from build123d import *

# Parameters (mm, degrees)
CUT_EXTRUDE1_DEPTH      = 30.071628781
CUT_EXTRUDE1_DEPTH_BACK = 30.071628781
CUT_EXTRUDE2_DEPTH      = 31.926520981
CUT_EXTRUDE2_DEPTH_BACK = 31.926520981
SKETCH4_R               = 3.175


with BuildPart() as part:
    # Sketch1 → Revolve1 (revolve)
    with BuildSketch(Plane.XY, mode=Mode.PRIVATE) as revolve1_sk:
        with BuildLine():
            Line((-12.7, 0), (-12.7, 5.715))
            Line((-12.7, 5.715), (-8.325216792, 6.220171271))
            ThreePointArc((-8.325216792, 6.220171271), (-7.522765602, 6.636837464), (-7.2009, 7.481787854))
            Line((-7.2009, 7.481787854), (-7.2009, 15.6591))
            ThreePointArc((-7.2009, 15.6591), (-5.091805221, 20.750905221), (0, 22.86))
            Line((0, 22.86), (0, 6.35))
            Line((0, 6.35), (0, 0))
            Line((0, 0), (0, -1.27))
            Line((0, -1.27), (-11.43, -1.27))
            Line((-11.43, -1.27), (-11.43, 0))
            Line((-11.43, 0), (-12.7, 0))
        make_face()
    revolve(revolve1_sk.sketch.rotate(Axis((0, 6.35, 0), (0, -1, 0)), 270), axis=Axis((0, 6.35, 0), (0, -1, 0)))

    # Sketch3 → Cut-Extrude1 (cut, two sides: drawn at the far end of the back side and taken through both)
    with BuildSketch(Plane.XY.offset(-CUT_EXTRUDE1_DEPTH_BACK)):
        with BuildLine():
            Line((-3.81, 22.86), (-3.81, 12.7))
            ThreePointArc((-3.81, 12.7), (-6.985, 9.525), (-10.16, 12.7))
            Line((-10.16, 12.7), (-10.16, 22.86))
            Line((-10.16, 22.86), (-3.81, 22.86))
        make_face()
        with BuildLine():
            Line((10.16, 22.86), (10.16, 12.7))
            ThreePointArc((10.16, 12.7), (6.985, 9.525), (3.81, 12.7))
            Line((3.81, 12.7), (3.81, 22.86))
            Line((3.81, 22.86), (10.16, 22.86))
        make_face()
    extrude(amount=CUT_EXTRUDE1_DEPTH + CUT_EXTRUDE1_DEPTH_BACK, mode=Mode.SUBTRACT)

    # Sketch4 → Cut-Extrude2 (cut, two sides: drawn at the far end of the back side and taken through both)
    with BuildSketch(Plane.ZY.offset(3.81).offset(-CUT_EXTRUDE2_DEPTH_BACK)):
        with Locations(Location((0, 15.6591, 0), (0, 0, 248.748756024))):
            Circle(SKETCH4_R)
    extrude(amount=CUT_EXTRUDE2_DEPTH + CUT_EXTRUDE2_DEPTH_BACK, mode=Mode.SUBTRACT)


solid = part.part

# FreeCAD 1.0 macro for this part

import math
import FreeCAD as App
import Part
import Sketcher
from FreeCAD import Vector
Q = App.Units.Quantity

doc = App.newDocument("Part")
params = doc.addObject("Spreadsheet::Sheet", "Params")
for row, (alias, value) in enumerate([
    ("sketch1_radius", "0.05 in"),
    ("sketch1_width", "0.05 in"),
    ("sketch1_width2", "0.45 in"),
    ("sketch1_height", "0.95 in"),
    ("sketch1_height2", "0.225 in"),
    ("revolution_angle", "360 deg"),
    ("sketch2_height", "0.4 in"),
    ("sketch2_radius", "0.125 in"),
    ("sketch3_diameter", "0.25 in"),
], start=1):
    params.set(f"A{row}", alias)
    params.set(f"B{row}", "=" + value)
    params.setAlias(f"B{row}", alias)

body = doc.addObject("PartDesign::Body", "Body")

# Sketch on XY plane
sketch1 = body.newObject("Sketcher::SketchObject", "Sketch")
sketch1.AttachmentSupport = (doc.getObject("XY_Plane"), [""])
sketch1.MapMode = "FlatFace"
sketch1.addGeometry([
    Part.LineSegment(Vector(-12.7, 5.7, 0), Vector(-12.7, 0, 0)),  # 0
    Part.LineSegment(Vector(-12.7, 0, 0), Vector(-11.4, 0, 0)),  # 1
    Part.LineSegment(Vector(-11.4, 0, 0), Vector(-11.4, -1.3, 0)),  # 2
    Part.LineSegment(Vector(-11.4, -1.3, 0), Vector(0, -1.3, 0)),  # 3
    Part.LineSegment(Vector(0, -1.3, 0), Vector(0, 22.9, 0)),  # 4
    Part.ArcOfCircle(Part.Circle(Vector(0, 15.7, 0), Vector(0, 0, 1), 7.2), math.radians(90), math.radians(180)),  # 5
    Part.LineSegment(Vector(-7.2, 15.7, 0), Vector(-7.2, 7.5, 0)),  # 6
    Part.ArcOfCircle(Part.Circle(Vector(-8.5, 7.5, 0), Vector(0, 0, 1), 1.3), math.radians(-83), math.radians(0)),  # 7
    Part.LineSegment(Vector(-8.3, 6.2, 0), Vector(-12.7, 5.7, 0)),  # 8
], False)
sketch1.addConstraint([
    Sketcher.Constraint("Coincident", 0, 2, 1, 1),
    Sketcher.Constraint("Coincident", 1, 2, 2, 1),
    Sketcher.Constraint("Coincident", 2, 2, 3, 1),
    Sketcher.Constraint("Coincident", 3, 2, 4, 1),
    Sketcher.Constraint("Coincident", 4, 2, 5, 1),
    Sketcher.Constraint("Tangent", 5, 2, 6, 1),
    Sketcher.Constraint("Tangent", 6, 2, 7, 2),
    Sketcher.Constraint("Tangent", 7, 1, 8, 1),
    Sketcher.Constraint("Coincident", 8, 2, 0, 1),
    Sketcher.Constraint("Vertical", 0),
    Sketcher.Constraint("Horizontal", 1),
    Sketcher.Constraint("Vertical", 2),
    Sketcher.Constraint("Horizontal", 3),
    Sketcher.Constraint("Vertical", 4),
    Sketcher.Constraint("Vertical", 6),
    Sketcher.Constraint("PointOnObject", 5, 3, -2),
    Sketcher.Constraint("PointOnObject", 0, 2, -1),
    Sketcher.Constraint("PointOnObject", 3, 2, -2),
    Sketcher.Constraint("Equal", 1, 2),
    Sketcher.Constraint("Radius", 7, Q("0.05 in")),
    Sketcher.Constraint("DistanceX", 1, 1, 1, 2, Q("0.05 in")),
    Sketcher.Constraint("DistanceX", 3, 1, 3, 2, Q("0.45 in")),
    Sketcher.Constraint("DistanceY", 4, 1, 4, 2, Q("0.95 in")),
    Sketcher.Constraint("Radius", 5, Q("0.2835 in")),
    Sketcher.Constraint("DistanceY", 0, 2, 0, 1, Q("0.225 in")),
    Sketcher.Constraint("DistanceY", 6, 2, 6, 1, 8.177312),
])
sketch1.setExpression("Constraints[19]", "Params.sketch1_radius")
sketch1.setExpression("Constraints[20]", "Params.sketch1_width")
sketch1.setExpression("Constraints[21]", "Params.sketch1_width2")
sketch1.setExpression("Constraints[22]", "Params.sketch1_height")
sketch1.setExpression("Constraints[24]", "Params.sketch1_height2")
revolution = body.newObject("PartDesign::Revolution", "Revolution")
revolution.Profile = sketch1
revolution.ReferenceAxis = (sketch1, ["V_Axis"])
revolution.setExpression("Angle", "Params.revolution_angle")

# Sketch on XY plane
sketch2 = body.newObject("Sketcher::SketchObject", "Sketch001")
sketch2.AttachmentSupport = (doc.getObject("XY_Plane"), [""])
sketch2.MapMode = "FlatFace"
sketch2.addGeometry([
    Part.LineSegment(Vector(-3.8, 12.7, 0), Vector(-3.8, 22.9, 0)),  # 0
    Part.LineSegment(Vector(-3.8, 22.9, 0), Vector(-10.2, 22.9, 0)),  # 1
    Part.LineSegment(Vector(-10.2, 22.9, 0), Vector(-10.2, 12.7, 0)),  # 2
    Part.ArcOfCircle(Part.Circle(Vector(-7, 12.7, 0), Vector(0, 0, 1), 3.2), math.radians(180), math.radians(360)),  # 3
    Part.LineSegment(Vector(10.2, 12.7, 0), Vector(10.2, 22.9, 0)),  # 4
    Part.LineSegment(Vector(10.2, 22.9, 0), Vector(3.8, 22.9, 0)),  # 5
    Part.LineSegment(Vector(3.8, 22.9, 0), Vector(3.8, 12.7, 0)),  # 6
    Part.ArcOfCircle(Part.Circle(Vector(7, 12.7, 0), Vector(0, 0, 1), 3.2), math.radians(180), math.radians(360)),  # 7
], False)
sketch2.addConstraint([
    Sketcher.Constraint("Coincident", 0, 2, 1, 1),
    Sketcher.Constraint("Coincident", 1, 2, 2, 1),
    Sketcher.Constraint("Tangent", 2, 2, 3, 1),
    Sketcher.Constraint("Tangent", 3, 2, 0, 1),
    Sketcher.Constraint("Coincident", 4, 2, 5, 1),
    Sketcher.Constraint("Coincident", 5, 2, 6, 1),
    Sketcher.Constraint("Tangent", 6, 2, 7, 1),
    Sketcher.Constraint("Tangent", 7, 2, 4, 1),
    Sketcher.Constraint("Vertical", 0),
    Sketcher.Constraint("Horizontal", 1),
    Sketcher.Constraint("Vertical", 2),
    Sketcher.Constraint("Vertical", 4),
    Sketcher.Constraint("Horizontal", 5),
    Sketcher.Constraint("Vertical", 6),
    Sketcher.Constraint("Equal", 3, 7),
    Sketcher.Constraint("Symmetric", 3, 3, 7, 3, -2),
    Sketcher.Constraint("Horizontal", 1, 2, 4, 2),
    Sketcher.Constraint("DistanceY", 0, 1, 0, 2, Q("0.4 in")),
    Sketcher.Constraint("Radius", 3, Q("0.125 in")),
    Sketcher.Constraint("DistanceY", -1, 1, 3, 3, Q("0.5 in")),
    Sketcher.Constraint("DistanceX", 1, 2, -1, 1, Q("0.4 in")),
])
sketch2.setExpression("Constraints[17]", "Params.sketch2_height")
sketch2.setExpression("Constraints[18]", "Params.sketch2_radius")
pocket1 = body.newObject("PartDesign::Pocket", "Pocket")
pocket1.Profile = sketch2
pocket1.Type = "ThroughAll"
pocket1.Midplane = True

# Sketch on YZ plane
sketch3 = body.newObject("Sketcher::SketchObject", "Sketch002")
sketch3.AttachmentSupport = (doc.getObject("YZ_Plane"), [""])
sketch3.MapMode = "FlatFace"
sketch3.AttachmentOffset = App.Placement(Vector(0, 0, -0.15 * 25.4), App.Rotation())
sketch3.addGeometry(Part.Circle(Vector(15.7, 0, 0), Vector(0, 0, 1), 3.2), False)
sketch3.addConstraint([
    Sketcher.Constraint("PointOnObject", 0, 3, -1),
    Sketcher.Constraint("Diameter", 0, Q("0.25 in")),
    Sketcher.Constraint("DistanceX", -1, 1, 0, 3, Q("0.6165 in")),
])
sketch3.setExpression("Constraints[1]", "Params.sketch3_diameter")
pocket2 = body.newObject("PartDesign::Pocket", "Pocket001")
pocket2.Profile = sketch3
pocket2.Type = "ThroughAll"
pocket2.Midplane = True

doc.recompute()
